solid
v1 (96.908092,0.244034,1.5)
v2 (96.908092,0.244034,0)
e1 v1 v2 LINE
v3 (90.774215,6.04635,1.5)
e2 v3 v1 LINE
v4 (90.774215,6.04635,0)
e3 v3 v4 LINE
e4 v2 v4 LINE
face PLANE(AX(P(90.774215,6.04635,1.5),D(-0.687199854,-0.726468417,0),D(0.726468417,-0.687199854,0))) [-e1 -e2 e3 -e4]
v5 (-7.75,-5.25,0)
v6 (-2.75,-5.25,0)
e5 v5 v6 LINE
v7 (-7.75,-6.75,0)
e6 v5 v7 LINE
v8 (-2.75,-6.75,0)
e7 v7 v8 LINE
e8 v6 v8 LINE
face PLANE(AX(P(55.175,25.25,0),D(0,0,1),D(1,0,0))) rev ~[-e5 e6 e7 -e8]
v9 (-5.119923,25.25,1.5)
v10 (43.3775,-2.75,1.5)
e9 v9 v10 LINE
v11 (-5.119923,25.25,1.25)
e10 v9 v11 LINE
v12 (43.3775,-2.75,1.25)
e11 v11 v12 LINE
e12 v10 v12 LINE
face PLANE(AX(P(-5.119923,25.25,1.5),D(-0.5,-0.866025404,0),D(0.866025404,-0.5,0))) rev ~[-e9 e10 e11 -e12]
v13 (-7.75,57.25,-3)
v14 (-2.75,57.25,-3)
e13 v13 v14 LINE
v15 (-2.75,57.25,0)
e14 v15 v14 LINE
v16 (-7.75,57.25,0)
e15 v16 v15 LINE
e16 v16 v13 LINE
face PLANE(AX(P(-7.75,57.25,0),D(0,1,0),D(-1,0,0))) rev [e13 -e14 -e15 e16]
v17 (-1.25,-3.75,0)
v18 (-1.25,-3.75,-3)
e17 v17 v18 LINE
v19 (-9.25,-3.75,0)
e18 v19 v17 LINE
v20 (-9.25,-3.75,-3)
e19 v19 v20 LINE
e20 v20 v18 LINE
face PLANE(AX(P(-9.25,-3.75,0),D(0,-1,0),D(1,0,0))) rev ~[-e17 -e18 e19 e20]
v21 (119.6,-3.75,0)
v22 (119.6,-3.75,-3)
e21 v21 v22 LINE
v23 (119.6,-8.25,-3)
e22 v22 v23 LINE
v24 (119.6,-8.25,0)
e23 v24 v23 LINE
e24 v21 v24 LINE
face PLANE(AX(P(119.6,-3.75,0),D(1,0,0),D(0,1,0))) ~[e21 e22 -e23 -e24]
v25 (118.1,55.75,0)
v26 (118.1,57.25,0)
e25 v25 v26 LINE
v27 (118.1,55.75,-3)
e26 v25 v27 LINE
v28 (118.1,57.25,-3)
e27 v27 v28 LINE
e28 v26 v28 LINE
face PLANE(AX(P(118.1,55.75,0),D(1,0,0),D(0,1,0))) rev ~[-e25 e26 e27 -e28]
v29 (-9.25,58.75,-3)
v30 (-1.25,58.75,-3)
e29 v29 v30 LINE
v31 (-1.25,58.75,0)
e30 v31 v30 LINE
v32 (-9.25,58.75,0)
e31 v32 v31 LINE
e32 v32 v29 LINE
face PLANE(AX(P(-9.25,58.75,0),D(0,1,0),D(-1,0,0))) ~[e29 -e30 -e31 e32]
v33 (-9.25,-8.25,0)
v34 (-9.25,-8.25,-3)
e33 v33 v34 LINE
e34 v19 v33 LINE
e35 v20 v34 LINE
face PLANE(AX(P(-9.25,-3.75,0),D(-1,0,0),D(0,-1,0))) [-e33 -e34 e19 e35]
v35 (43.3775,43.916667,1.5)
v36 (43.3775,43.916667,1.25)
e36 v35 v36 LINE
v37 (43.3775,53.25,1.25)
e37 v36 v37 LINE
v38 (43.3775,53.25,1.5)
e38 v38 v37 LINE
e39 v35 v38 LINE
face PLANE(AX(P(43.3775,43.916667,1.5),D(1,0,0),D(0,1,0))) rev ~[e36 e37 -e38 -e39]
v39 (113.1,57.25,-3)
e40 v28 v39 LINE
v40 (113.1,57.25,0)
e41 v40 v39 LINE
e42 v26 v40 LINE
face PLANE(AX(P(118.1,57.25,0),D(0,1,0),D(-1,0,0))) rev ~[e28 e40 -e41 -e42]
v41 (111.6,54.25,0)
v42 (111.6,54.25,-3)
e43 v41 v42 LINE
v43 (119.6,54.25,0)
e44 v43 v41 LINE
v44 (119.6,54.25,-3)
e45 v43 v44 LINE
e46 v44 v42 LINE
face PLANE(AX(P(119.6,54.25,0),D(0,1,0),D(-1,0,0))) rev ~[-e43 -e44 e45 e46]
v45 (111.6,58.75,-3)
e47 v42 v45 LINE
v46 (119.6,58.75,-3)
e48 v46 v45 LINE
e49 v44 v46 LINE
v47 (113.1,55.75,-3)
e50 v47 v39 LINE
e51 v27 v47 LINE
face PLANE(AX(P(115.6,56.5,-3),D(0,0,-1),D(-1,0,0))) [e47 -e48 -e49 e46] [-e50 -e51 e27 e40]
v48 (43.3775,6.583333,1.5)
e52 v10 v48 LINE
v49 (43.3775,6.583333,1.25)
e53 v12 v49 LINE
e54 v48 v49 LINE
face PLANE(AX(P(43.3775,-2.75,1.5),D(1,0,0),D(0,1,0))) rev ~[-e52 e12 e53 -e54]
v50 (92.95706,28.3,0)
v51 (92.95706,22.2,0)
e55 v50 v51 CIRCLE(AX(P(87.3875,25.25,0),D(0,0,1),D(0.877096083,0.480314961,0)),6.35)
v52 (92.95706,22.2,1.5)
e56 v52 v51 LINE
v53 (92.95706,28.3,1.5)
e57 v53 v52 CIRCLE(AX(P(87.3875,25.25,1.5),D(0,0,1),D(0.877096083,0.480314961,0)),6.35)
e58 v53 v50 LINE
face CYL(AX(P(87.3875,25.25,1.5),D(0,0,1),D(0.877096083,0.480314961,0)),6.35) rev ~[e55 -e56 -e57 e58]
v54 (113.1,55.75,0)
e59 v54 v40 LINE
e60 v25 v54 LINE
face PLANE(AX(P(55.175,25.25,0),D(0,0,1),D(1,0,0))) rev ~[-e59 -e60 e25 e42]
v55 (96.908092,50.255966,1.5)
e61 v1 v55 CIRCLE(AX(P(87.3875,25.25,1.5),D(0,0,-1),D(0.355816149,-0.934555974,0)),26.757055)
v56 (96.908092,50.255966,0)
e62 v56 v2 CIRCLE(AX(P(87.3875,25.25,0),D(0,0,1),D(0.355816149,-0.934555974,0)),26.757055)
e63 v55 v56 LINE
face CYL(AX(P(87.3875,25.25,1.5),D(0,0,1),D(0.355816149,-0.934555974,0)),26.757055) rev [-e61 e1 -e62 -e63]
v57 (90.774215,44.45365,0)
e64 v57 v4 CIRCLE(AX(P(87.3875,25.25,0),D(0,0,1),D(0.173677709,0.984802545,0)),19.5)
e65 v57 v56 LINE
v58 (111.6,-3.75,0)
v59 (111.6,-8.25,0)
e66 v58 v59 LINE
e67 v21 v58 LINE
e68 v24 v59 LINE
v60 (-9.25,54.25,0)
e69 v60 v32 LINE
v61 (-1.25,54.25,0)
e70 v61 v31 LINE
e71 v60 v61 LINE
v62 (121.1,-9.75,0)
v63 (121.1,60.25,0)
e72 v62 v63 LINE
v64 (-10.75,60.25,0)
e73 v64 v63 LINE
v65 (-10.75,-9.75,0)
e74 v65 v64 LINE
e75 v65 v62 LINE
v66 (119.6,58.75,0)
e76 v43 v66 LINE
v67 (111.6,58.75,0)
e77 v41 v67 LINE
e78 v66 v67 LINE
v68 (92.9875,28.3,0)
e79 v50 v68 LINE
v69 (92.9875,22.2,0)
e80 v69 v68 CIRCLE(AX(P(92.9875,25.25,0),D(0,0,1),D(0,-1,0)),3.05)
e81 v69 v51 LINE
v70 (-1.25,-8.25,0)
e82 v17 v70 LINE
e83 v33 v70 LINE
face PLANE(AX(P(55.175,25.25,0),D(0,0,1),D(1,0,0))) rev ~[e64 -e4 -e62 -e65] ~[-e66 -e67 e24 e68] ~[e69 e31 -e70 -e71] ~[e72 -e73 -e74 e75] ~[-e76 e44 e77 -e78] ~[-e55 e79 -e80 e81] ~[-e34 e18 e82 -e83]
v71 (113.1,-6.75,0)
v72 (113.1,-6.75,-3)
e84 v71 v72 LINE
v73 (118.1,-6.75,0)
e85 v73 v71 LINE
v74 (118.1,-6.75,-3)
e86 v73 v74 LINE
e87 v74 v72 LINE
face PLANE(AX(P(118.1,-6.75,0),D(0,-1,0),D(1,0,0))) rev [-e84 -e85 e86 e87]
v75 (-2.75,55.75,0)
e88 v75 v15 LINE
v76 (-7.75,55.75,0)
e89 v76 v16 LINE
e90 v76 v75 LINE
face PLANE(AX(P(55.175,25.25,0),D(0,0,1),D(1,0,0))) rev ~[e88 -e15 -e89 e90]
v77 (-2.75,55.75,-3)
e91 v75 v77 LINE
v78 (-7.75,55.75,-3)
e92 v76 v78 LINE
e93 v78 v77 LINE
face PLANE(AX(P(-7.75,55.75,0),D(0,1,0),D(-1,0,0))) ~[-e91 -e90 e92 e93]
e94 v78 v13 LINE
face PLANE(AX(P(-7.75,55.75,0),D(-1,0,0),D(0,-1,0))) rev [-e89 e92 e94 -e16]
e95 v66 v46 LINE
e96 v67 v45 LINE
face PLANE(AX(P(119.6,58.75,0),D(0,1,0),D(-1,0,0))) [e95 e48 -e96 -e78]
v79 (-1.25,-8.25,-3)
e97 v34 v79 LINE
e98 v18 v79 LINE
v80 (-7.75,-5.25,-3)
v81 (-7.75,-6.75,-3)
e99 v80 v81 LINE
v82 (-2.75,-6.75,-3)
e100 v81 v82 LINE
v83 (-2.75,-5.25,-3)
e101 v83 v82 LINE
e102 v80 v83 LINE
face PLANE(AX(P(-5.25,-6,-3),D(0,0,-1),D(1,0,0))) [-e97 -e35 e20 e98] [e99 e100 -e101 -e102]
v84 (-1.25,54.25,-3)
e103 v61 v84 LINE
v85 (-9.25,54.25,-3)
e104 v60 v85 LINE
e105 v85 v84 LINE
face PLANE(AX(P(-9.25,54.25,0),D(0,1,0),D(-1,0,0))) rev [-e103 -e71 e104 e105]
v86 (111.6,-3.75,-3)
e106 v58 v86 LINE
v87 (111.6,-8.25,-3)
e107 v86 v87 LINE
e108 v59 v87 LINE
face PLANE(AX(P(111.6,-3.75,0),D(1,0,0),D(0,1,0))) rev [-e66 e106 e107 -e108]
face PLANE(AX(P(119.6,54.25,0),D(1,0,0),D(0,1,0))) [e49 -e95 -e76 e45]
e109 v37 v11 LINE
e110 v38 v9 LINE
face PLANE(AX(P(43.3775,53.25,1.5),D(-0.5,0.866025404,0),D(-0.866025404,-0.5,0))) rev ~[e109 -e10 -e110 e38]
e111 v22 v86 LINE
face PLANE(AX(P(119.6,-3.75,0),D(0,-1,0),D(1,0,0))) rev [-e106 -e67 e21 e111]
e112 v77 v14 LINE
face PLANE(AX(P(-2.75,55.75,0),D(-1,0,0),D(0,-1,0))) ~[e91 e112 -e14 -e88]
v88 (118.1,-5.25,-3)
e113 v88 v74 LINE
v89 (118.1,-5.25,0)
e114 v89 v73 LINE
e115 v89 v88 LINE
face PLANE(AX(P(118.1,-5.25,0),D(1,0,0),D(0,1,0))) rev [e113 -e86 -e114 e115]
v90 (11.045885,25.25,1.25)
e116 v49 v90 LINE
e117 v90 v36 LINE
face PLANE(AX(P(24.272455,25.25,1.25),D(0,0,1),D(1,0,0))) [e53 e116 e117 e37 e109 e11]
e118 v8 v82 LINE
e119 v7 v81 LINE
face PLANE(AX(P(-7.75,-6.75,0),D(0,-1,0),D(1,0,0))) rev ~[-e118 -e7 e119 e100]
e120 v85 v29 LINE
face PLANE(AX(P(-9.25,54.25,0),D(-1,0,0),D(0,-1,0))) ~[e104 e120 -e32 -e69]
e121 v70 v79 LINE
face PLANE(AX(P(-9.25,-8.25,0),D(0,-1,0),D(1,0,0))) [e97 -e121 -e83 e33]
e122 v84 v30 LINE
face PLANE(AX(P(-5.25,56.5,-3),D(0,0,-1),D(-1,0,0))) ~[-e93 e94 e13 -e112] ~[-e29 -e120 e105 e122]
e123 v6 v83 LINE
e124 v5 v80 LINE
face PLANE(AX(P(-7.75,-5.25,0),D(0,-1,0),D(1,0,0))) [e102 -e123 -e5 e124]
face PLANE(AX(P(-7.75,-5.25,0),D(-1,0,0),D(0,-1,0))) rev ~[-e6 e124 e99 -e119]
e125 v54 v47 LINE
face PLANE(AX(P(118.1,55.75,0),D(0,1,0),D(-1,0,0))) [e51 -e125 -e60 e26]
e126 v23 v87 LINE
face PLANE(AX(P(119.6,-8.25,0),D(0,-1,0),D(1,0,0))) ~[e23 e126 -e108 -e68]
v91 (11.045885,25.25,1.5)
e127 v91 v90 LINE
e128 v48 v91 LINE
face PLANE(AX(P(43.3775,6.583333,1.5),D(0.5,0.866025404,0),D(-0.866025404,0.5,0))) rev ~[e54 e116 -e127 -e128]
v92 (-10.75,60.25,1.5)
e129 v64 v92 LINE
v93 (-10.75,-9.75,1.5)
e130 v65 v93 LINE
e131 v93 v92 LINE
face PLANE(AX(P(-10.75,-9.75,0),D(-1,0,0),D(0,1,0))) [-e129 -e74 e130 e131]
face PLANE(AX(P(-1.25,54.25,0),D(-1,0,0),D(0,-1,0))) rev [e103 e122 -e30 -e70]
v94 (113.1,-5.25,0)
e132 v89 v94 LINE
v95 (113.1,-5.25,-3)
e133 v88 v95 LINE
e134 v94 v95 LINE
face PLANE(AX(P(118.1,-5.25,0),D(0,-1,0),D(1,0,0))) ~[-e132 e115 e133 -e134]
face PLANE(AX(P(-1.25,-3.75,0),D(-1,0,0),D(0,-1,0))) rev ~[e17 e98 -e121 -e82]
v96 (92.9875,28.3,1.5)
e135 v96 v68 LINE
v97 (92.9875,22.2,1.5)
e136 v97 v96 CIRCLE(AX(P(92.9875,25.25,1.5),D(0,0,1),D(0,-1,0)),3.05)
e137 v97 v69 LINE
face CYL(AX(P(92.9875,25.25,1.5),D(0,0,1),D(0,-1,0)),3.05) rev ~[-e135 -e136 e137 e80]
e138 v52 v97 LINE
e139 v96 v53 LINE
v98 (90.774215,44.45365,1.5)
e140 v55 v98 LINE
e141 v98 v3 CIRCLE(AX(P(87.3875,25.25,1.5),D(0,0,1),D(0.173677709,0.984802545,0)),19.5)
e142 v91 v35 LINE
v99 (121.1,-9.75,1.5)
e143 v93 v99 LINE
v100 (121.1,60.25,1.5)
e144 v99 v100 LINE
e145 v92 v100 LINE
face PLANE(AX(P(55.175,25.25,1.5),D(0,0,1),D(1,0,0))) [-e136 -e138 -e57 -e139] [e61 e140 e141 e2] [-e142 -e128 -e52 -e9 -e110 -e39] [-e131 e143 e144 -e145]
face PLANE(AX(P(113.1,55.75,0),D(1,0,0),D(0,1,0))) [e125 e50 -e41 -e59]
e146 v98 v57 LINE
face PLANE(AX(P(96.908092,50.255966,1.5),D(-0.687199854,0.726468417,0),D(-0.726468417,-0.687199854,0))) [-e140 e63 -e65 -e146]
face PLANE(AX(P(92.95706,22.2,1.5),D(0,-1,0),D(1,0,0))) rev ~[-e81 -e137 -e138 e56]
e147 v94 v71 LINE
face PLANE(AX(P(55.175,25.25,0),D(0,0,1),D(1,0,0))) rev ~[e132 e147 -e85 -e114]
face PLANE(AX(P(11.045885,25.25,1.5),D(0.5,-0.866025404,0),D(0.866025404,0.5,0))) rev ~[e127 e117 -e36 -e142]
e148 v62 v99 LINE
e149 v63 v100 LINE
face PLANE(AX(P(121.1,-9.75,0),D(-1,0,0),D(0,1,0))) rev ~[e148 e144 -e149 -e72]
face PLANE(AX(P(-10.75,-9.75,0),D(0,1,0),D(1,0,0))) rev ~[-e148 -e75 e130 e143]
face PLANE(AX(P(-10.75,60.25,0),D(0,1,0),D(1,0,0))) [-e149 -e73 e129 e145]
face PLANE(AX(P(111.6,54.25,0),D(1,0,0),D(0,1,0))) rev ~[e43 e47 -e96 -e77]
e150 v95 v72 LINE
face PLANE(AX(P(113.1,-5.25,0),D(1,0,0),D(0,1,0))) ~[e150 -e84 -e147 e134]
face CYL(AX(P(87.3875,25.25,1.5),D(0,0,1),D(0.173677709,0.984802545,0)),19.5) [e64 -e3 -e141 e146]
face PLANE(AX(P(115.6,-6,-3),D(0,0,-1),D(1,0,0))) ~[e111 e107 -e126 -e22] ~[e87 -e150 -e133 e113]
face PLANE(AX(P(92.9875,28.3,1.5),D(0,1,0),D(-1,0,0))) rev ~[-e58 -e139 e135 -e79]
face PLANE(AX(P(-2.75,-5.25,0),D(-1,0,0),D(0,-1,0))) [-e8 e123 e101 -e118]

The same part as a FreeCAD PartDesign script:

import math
import FreeCAD as App
import Part
import Sketcher

V = App.Vector
Q = App.Units.Quantity


def add_polygon(sketch, points):
    """Adds a closed chain of lines whose ends are joined by coincident constraints."""
    first, n = sketch.GeometryCount, len(points)
    for a, b in zip(points, points[1:] + points[:1]):
        sketch.addGeometry(Part.LineSegment(App.Vector(*a, 0), App.Vector(*b, 0)), False)
    for i in range(n):
        sketch.addConstraint(Sketcher.Constraint("Coincident", first + i, 2, first + (i + 1) % n, 1))

doc = App.newDocument("Part")
body = doc.addObject("PartDesign::Body", "Body")

# Sketch on XY plane
sketch1 = body.newObject("Sketcher::SketchObject", "Sketch")
sketch1.AttachmentSupport = (doc.getObject("XY_Plane"), [""])
sketch1.MapMode = "FlatFace"
add_polygon(sketch1, [(-11, 60), (-11, -10), (121, -10), (121, 60)])  # lines 0-3
sketch1.addConstraint([
    Sketcher.Constraint("Vertical", 0),
    Sketcher.Constraint("Horizontal", 1),
    Sketcher.Constraint("Vertical", 2),
    Sketcher.Constraint("Horizontal", 3),
    Sketcher.Constraint("DistanceY", 0, 2, 0, 1, 70.0),
    Sketcher.Constraint("DistanceX", 1, 1, 1, 2, 131.85),
    Sketcher.Constraint("DistanceX", -1, 1, 1, 2, 121.1),
    Sketcher.Constraint("DistanceY", 0, 2, -1, 1, 9.75),
])
pad1 = body.newObject("PartDesign::Pad", "Pad")
pad1.Profile = sketch1
pad1.Length = 1.5

# Sketch on XY plane
sketch2 = body.newObject("Sketcher::SketchObject", "Sketch001")
sketch2.AttachmentSupport = (doc.getObject("XY_Plane"), [""])
sketch2.MapMode = "FlatFace"
sketch2.AttachmentOffset = App.Placement(V(0, 0, 1.5), App.Rotation())
sketch2.addGeometry([
    Part.LineSegment(V(92.957, 22.2, 0), V(92.987, 22.2, 0)),
    Part.ArcOfCircle(Part.Circle(V(92.987, 25.25, 0), V(0, 0, 1), 3.05), math.radians(-90), math.radians(90)),
    Part.LineSegment(V(92.987, 28.3, 0), V(92.957, 28.3, 0)),
    Part.ArcOfCircle(Part.Circle(V(87.388, 25.25, 0), V(0, 0, 1), 6.35), math.radians(29), math.radians(331)),
], False)
sketch2.addConstraint([
    Sketcher.Constraint("Tangent", 0, 2, 1, 1),
    Sketcher.Constraint("Tangent", 1, 2, 2, 1),
    Sketcher.Constraint("Coincident", 2, 2, 3, 1),
    Sketcher.Constraint("Coincident", 3, 2, 0, 1),
    Sketcher.Constraint("Horizontal", 0),
    Sketcher.Constraint("Horizontal", 2),
    Sketcher.Constraint("Horizontal", 1, 3, 3, 3),
    Sketcher.Constraint("Radius", 1, 3.05),
    Sketcher.Constraint("Radius", 3, 6.35),
    Sketcher.Constraint("DistanceY", -1, 1, 0, 2, 22.2),
    Sketcher.Constraint("DistanceX", 3, 3, 1, 3, 5.6),
    Sketcher.Constraint("DistanceX", -1, 1, 1, 3, 92.9875),
])
pocket1 = body.newObject("PartDesign::Pocket", "Pocket")
pocket1.Profile = sketch2
pocket1.Type = "UpToFirst"

# Sketch on XY plane
sketch3 = body.newObject("Sketcher::SketchObject", "Sketch002")
sketch3.AttachmentSupport = (doc.getObject("XY_Plane"), [""])
sketch3.MapMode = "FlatFace"
add_polygon(sketch3, [(119.6, 58.8), (119.6, 54.2), (111.6, 54.2), (111.6, 58.8)])  # lines 0-3
add_polygon(sketch3, [(113.1, 55.8), (118.1, 55.8), (118.1, 57.2), (113.1, 57.2)])  # lines 4-7
sketch3.addConstraint([
    Sketcher.Constraint("Vertical", 0),
    Sketcher.Constraint("Horizontal", 1),
    Sketcher.Constraint("Vertical", 2),
    Sketcher.Constraint("Horizontal", 3),
    Sketcher.Constraint("Horizontal", 4),
    Sketcher.Constraint("Vertical", 5),
    Sketcher.Constraint("Horizontal", 6),
    Sketcher.Constraint("Vertical", 7),
    Sketcher.Constraint("DistanceX", 1, 2, 1, 1, 8.0),
    Sketcher.Constraint("DistanceX", 4, 1, 4, 2, 5.0),
    Sketcher.Constraint("DistanceY", 0, 2, 0, 1, 4.5),
    Sketcher.Constraint("DistanceY", 5, 1, 5, 2, 1.5),
    Sketcher.Constraint("DistanceY", 4, 2, 3, 2, 3.0),
    Sketcher.Constraint("DistanceX", -1, 1, 0, 2, 119.6),
    Sketcher.Constraint("DistanceX", -1, 1, 4, 2, 118.1),
    Sketcher.Constraint("DistanceY", -1, 1, 0, 2, 54.25),
])
pad2 = body.newObject("PartDesign::Pad", "Pad001")
pad2.Profile = sketch3
pad2.Length = 3
pad2.Reversed = True
doc.recompute()

datumplane = body.newObject("PartDesign::Plane", "DatumPlane")
datumplane.AttachmentSupport = (doc.getObject("XZ_Plane"), [""])
datumplane.MapMode = "FlatFace"
datumplane.AttachmentOffset = App.Placement(V(0, 0, -25.25), App.Rotation())
mirrored = body.newObject("PartDesign::Mirrored", "Mirrored")
mirrored.Originals = [pad2]
mirrored.MirrorPlane = (datumplane, [""])
body.Tip = mirrored
doc.recompute()

datumplane2 = body.newObject("PartDesign::Plane", "DatumPlane001")
datumplane2.AttachmentSupport = (doc.getObject("YZ_Plane"), [""])
datumplane2.MapMode = "FlatFace"
datumplane2.AttachmentOffset = App.Placement(V(0, 0, 55.175), App.Rotation())
mirrored2 = body.newObject("PartDesign::Mirrored", "Mirrored001")
mirrored2.Originals = [pad2]
mirrored2.MirrorPlane = (datumplane2, [""])
body.Tip = mirrored2

# Sketch on XY plane
sketch4 = body.newObject("Sketcher::SketchObject", "Sketch003")
sketch4.AttachmentSupport = (doc.getObject("XY_Plane"), [""])
sketch4.MapMode = "FlatFace"
add_polygon(sketch4, [(-9.2, -8.2), (-9.2, -3.8), (-1.2, -3.8), (-1.2, -8.2)])  # lines 0-3
add_polygon(sketch4, [(-2.8, -5.2), (-7.8, -5.2), (-7.8, -6.8), (-2.8, -6.8)])  # lines 4-7
sketch4.addConstraint([
    Sketcher.Constraint("Vertical", 0),
    Sketcher.Constraint("Horizontal", 1),
    Sketcher.Constraint("Vertical", 2),
    Sketcher.Constraint("Horizontal", 3),
    Sketcher.Constraint("Horizontal", 4),
    Sketcher.Constraint("Vertical", 5),
    Sketcher.Constraint("Horizontal", 6),
    Sketcher.Constraint("Vertical", 7),
    Sketcher.Constraint("DistanceX", 1, 1, 1, 2, 8.0),
    Sketcher.Constraint("DistanceX", 4, 2, 4, 1, 5.0),
    Sketcher.Constraint("DistanceY", 0, 1, 0, 2, 4.5),
    Sketcher.Constraint("DistanceY", 5, 2, 5, 1, 1.5),
    Sketcher.Constraint("DistanceY", 3, 2, 4, 2, 3.0),
    Sketcher.Constraint("DistanceX", 0, 2, 4, 2, 1.5),
    Sketcher.Constraint("DistanceX", 0, 2, -1, 1, 9.25),
    Sketcher.Constraint("DistanceY", 0, 2, -1, 1, 3.75),
])
pad3 = body.newObject("PartDesign::Pad", "Pad002")
pad3.Profile = sketch4
pad3.Length = 3
pad3.Reversed = True

# Sketch on XY plane
sketch5 = body.newObject("Sketcher::SketchObject", "Sketch004")
sketch5.AttachmentSupport = (doc.getObject("XY_Plane"), [""])
sketch5.MapMode = "FlatFace"
sketch5.AttachmentOffset = App.Placement(V(0, 0, 1.5), App.Rotation())
sketch5.addGeometry([
    Part.LineSegment(V(97, 0, 0), V(91, 6, 0)),
    Part.ArcOfCircle(Part.Circle(V(87, 25, 0), V(0, 0, 1), 20), math.radians(80), math.radians(280)),
    Part.LineSegment(V(91, 44, 0), V(97, 50, 0)),
    Part.ArcOfCircle(Part.Circle(V(87, 25, 0), V(0, 0, 1), 27), math.radians(69), math.radians(291)),
], False)
sketch5.addConstraint([
    Sketcher.Constraint("Coincident", 0, 2, 1, 2),
    Sketcher.Constraint("Coincident", 1, 1, 2, 1),
    Sketcher.Constraint("Coincident", 2, 2, 3, 1),
    Sketcher.Constraint("Coincident", 3, 2, 0, 1),
    Sketcher.Constraint("Coincident", 3, 3, 1, 3),
    Sketcher.Constraint("Vertical", 0, 2, 1, 1),
    Sketcher.Constraint("Vertical", 2, 2, 3, 2),
    Sketcher.Constraint("Radius", 1, 19.5),
    Sketcher.Constraint("DistanceY", -1, 1, 1, 3, 25.25),
    Sketcher.Constraint("Radius", 3, 26.757055),
    Sketcher.Constraint("DistanceX", -1, 1, 1, 3, 87.3875),
    Sketcher.Constraint("DistanceY", 0, 2, 1, 1, 38.407299),
    Sketcher.Constraint("Distance", 0, 8.443419),
])
pocket2 = body.newObject("PartDesign::Pocket", "Pocket001")
pocket2.Profile = sketch5
pocket2.Type = "UpToFirst"

# Sketch on XY plane
sketch6 = body.newObject("Sketcher::SketchObject", "Sketch005")
sketch6.AttachmentSupport = (doc.getObject("XY_Plane"), [""])
sketch6.MapMode = "FlatFace"
sketch6.AttachmentOffset = App.Placement(V(0, 0, 1.5), App.Rotation())
add_polygon(sketch6, [(-5, 25), (43, -3), (43, 7), (11, 25), (43, 44), (43, 53)])  # lines 0-5
sketch6.addConstraint([
    Sketcher.Constraint("Vertical", 1),
    Sketcher.Constraint("Vertical", 4),
    Sketcher.Constraint("Parallel", 0, 2),
    Sketcher.Constraint("Parallel", 3, 5),
    Sketcher.Constraint("Horizontal", 2, 2, 5, 2),
    Sketcher.Constraint("Vertical", 1, 2, 3, 2),
    Sketcher.Constraint("Equal", 1, 4),
    Sketcher.Constraint("Angle", 0, Q("-30 deg")),
    Sketcher.Constraint("Distance", 0, 56.0),
    Sketcher.Constraint("DistanceY", 0, 2, -1, 1, 2.75),
    Sketcher.Constraint("DistanceX", -1, 1, 0, 2, 43.3775),
    Sketcher.Constraint("DistanceY", 1, 1, 1, 2, 9.333333),
])
pocket3 = body.newObject("PartDesign::Pocket", "Pocket002")
pocket3.Profile = sketch6
pocket3.Length = 0.25

doc.recompute()
